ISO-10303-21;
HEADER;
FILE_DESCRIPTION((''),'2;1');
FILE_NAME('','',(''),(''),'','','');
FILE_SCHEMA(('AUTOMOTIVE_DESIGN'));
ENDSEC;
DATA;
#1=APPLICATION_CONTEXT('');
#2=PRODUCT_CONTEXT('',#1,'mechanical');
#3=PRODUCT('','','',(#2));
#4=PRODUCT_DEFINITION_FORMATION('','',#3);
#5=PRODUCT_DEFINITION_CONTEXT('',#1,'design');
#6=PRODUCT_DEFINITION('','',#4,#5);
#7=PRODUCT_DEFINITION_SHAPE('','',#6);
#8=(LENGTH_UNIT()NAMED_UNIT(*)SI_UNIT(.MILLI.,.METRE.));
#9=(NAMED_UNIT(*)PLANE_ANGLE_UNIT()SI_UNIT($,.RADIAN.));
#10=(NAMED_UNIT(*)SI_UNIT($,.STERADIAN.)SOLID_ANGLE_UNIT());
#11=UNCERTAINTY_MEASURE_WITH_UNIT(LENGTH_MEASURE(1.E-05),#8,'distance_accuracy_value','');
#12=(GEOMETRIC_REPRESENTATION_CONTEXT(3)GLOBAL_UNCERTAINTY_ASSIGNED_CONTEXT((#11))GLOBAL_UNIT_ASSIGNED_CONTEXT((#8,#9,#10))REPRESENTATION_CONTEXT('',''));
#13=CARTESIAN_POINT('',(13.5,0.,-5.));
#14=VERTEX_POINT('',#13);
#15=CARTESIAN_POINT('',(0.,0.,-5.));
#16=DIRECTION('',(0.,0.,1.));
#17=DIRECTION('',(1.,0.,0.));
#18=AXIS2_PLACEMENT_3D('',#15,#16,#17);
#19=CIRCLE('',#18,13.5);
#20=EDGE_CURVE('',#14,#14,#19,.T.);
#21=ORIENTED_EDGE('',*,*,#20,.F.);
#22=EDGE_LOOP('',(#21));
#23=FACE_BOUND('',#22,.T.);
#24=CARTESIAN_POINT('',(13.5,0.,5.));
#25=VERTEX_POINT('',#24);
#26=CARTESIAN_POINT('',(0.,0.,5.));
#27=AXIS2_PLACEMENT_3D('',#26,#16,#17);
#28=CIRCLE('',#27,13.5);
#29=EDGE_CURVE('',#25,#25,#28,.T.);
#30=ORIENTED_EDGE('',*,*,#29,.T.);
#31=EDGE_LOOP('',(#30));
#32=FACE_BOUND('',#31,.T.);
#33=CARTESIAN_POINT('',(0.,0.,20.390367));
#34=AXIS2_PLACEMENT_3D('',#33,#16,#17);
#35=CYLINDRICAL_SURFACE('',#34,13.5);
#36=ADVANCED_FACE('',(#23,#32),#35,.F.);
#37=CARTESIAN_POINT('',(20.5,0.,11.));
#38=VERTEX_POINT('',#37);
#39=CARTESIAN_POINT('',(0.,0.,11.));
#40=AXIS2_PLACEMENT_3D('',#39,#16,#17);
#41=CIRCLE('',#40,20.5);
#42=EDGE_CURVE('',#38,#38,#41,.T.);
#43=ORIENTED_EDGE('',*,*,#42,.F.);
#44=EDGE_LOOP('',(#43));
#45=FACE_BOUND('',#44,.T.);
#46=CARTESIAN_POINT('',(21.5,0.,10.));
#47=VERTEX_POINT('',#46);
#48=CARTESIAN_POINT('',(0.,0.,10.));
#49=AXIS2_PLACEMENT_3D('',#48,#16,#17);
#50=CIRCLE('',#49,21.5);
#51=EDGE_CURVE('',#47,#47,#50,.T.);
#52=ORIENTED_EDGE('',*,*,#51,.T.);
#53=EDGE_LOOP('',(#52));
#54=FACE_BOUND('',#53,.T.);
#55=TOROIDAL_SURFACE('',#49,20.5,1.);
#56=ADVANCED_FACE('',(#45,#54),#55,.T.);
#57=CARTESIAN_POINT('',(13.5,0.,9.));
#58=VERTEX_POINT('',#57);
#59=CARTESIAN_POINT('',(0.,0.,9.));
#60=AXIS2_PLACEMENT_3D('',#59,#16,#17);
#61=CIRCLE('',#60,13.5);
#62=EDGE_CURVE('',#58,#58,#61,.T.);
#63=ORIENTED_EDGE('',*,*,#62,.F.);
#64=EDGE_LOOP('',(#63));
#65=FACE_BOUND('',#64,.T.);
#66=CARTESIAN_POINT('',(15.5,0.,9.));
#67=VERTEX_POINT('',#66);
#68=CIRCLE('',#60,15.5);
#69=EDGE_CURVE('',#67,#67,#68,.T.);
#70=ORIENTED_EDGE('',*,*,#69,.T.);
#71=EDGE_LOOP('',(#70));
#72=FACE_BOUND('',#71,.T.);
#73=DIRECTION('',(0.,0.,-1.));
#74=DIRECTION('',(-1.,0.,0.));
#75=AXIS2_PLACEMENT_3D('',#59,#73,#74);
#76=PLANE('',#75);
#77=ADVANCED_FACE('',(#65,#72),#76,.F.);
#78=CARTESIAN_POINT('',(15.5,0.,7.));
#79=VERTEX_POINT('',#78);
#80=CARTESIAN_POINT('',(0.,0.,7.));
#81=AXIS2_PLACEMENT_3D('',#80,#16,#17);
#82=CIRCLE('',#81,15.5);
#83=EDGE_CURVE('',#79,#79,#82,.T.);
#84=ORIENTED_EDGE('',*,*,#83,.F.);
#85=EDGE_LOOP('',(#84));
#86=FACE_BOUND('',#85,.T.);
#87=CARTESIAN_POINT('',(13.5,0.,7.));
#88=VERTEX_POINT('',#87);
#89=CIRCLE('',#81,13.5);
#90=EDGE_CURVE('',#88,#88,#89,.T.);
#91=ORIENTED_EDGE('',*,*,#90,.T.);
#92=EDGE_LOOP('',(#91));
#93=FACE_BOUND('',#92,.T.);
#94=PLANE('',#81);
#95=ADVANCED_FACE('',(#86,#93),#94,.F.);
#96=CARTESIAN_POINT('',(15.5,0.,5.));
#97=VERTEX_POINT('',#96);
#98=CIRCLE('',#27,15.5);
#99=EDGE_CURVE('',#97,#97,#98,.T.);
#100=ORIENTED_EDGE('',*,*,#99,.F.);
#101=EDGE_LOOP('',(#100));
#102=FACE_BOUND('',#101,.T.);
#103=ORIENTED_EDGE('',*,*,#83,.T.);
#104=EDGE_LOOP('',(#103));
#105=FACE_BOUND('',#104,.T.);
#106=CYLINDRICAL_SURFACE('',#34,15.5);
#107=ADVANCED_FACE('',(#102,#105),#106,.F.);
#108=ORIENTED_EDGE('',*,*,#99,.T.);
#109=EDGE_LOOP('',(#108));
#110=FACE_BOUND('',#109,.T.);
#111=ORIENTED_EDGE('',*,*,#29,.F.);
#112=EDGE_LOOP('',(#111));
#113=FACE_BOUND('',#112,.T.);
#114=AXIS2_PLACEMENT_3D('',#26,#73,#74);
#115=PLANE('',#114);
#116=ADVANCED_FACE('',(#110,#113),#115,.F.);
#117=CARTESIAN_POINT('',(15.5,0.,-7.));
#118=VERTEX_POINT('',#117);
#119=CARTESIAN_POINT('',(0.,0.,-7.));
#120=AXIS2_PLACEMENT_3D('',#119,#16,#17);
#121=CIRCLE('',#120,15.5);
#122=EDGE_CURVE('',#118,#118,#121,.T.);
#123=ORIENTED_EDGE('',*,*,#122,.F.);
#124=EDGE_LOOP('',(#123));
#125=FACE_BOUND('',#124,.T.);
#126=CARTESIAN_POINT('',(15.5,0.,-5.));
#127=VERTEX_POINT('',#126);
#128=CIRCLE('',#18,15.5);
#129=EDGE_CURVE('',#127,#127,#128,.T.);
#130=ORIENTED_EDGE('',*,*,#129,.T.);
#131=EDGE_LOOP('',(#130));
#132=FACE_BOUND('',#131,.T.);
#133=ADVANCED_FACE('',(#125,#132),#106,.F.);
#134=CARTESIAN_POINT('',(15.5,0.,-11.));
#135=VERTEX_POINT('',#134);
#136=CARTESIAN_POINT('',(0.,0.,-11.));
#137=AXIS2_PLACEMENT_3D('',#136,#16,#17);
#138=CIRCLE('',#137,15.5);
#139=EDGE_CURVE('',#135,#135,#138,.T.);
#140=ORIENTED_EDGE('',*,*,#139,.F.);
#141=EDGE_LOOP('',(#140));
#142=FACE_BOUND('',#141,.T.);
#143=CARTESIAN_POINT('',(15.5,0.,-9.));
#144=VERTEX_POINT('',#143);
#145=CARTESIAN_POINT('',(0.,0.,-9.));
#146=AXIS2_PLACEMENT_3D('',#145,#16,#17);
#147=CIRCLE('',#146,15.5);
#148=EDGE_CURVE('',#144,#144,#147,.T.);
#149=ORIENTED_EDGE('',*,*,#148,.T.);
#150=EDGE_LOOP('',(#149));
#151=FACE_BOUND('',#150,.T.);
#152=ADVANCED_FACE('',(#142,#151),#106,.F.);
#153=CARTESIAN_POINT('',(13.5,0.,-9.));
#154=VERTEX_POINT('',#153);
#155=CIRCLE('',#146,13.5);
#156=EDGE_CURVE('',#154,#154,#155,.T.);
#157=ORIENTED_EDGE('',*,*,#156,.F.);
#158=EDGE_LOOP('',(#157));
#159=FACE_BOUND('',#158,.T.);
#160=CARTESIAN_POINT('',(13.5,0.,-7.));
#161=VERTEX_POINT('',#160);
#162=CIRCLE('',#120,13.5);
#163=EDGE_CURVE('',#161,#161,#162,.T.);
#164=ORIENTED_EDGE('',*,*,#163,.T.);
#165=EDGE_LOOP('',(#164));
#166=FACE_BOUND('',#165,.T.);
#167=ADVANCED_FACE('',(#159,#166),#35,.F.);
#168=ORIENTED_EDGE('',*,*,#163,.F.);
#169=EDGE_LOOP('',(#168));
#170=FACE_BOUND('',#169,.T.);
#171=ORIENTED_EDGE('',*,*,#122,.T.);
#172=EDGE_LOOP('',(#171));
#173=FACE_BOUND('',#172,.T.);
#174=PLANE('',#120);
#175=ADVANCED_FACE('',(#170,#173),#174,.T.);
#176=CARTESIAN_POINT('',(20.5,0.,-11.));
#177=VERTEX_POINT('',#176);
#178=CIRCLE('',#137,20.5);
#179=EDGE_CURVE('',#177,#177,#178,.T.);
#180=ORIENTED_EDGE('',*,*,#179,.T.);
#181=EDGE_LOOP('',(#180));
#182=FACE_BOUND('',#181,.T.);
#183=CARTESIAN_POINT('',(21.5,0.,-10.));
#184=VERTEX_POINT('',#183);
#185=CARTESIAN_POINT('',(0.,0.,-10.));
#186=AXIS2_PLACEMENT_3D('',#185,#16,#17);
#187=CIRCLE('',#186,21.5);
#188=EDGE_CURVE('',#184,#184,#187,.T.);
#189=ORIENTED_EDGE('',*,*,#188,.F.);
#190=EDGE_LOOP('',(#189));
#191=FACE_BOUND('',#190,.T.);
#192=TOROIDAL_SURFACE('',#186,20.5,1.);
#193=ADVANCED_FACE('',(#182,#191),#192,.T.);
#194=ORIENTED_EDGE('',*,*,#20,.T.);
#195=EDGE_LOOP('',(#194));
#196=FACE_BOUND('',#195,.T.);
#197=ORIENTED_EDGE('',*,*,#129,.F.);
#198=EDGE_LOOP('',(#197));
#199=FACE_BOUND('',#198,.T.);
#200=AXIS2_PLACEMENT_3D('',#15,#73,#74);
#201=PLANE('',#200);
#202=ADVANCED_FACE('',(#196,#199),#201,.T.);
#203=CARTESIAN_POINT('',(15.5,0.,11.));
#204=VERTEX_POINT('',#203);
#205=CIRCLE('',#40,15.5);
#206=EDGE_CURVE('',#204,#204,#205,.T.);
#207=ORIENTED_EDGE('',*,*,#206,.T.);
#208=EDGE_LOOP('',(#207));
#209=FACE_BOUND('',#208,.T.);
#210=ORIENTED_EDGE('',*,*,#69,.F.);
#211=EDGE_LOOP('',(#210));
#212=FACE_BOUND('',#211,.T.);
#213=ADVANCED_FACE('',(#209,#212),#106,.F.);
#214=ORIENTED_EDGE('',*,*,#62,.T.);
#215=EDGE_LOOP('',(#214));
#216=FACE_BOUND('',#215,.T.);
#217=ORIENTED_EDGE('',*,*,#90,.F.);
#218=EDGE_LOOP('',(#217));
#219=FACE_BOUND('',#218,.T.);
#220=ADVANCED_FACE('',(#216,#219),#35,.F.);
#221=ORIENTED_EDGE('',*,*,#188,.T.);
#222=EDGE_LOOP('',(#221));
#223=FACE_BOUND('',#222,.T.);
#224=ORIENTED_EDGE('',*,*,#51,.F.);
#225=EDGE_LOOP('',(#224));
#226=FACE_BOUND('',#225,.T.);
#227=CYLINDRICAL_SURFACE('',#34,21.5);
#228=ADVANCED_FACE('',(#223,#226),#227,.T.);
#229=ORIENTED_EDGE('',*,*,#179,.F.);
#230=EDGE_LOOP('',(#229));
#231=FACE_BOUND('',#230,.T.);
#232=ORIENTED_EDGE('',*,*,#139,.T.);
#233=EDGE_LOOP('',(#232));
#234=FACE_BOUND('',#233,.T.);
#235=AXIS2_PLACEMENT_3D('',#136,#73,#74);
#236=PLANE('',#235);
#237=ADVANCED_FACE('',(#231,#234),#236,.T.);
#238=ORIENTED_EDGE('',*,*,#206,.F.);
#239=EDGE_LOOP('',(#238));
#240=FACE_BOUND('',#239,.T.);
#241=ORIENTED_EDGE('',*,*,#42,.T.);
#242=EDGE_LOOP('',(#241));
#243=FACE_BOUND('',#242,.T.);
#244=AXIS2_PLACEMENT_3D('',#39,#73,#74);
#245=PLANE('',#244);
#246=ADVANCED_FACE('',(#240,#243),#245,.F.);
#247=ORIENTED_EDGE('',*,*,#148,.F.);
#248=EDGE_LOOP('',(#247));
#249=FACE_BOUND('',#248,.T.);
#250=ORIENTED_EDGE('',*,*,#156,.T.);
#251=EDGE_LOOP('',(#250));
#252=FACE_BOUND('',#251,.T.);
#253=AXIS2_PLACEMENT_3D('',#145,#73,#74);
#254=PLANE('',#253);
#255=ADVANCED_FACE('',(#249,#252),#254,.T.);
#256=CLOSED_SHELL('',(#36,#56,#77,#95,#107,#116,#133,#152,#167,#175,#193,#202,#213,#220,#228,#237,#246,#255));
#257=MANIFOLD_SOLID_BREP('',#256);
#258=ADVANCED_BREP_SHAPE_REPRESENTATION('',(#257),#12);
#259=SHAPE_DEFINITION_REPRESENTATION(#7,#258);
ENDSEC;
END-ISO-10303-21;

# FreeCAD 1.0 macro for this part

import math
import FreeCAD as App
import Part
import Sketcher

V = App.Vector

doc = App.newDocument("Part")
body = doc.addObject("PartDesign::Body", "Body")

# Sketch on YZ plane
sketch1 = body.newObject("Sketcher::SketchObject", "Sketch")
sketch1.AttachmentSupport = (doc.getObject("YZ_Plane"), [""])
sketch1.MapMode = "FlatFace"
sketch1.addGeometry(Part.LineSegment(V(21.5, -10, 0), V(21.5, 10, 0)), False)
sketch1.addGeometry(Part.ArcOfCircle(Part.Circle(V(20.5, 10, 0), V(0, 0, 1), 1), math.radians(0), math.radians(90)), False)
sketch1.addGeometry(Part.LineSegment(V(20.5, 11, 0), V(15.5, 11, 0)), False)
sketch1.addGeometry(Part.LineSegment(V(15.5, 11, 0), V(15.5, 9, 0)), False)
sketch1.addGeometry(Part.LineSegment(V(15.5, 9, 0), V(13.5, 9, 0)), False)
sketch1.addGeometry(Part.LineSegment(V(13.5, 9, 0), V(13.5, 7, 0)), False)
sketch1.addGeometry(Part.LineSegment(V(13.5, 7, 0), V(15.5, 7, 0)), False)
sketch1.addGeometry(Part.LineSegment(V(15.5, 7, 0), V(15.5, 5, 0)), False)
sketch1.addGeometry(Part.LineSegment(V(15.5, 5, 0), V(13.5, 5, 0)), False)
sketch1.addGeometry(Part.LineSegment(V(13.5, 5, 0), V(13.5, -5, 0)), False)
sketch1.addGeometry(Part.LineSegment(V(13.5, -5, 0), V(15.5, -5, 0)), False)
sketch1.addGeometry(Part.LineSegment(V(15.5, -5, 0), V(15.5, -7, 0)), False)
sketch1.addGeometry(Part.LineSegment(V(15.5, -7, 0), V(13.5, -7, 0)), False)
sketch1.addGeometry(Part.LineSegment(V(13.5, -7, 0), V(13.5, -9, 0)), False)
sketch1.addGeometry(Part.LineSegment(V(13.5, -9, 0), V(15.5, -9, 0)), False)
sketch1.addGeometry(Part.LineSegment(V(15.5, -9, 0), V(15.5, -11, 0)), False)
sketch1.addGeometry(Part.LineSegment(V(15.5, -11, 0), V(20.5, -11, 0)), False)
sketch1.addGeometry(Part.ArcOfCircle(Part.Circle(V(20.5, -10, 0), V(0, 0, 1), 1), math.radians(-90), math.radians(0)), False)
sketch1.addConstraint(Sketcher.Constraint("Tangent", 0, 2, 1, 1))
sketch1.addConstraint(Sketcher.Constraint("Tangent", 1, 2, 2, 1))
sketch1.addConstraint(Sketcher.Constraint("Coincident", 2, 2, 3, 1))
sketch1.addConstraint(Sketcher.Constraint("Coincident", 3, 2, 4, 1))
sketch1.addConstraint(Sketcher.Constraint("Coincident", 4, 2, 5, 1))
sketch1.addConstraint(Sketcher.Constraint("Coincident", 5, 2, 6, 1))
sketch1.addConstraint(Sketcher.Constraint("Coincident", 6, 2, 7, 1))
sketch1.addConstraint(Sketcher.Constraint("Coincident", 7, 2, 8, 1))
sketch1.addConstraint(Sketcher.Constraint("Coincident", 8, 2, 9, 1))
sketch1.addConstraint(Sketcher.Constraint("Coincident", 9, 2, 10, 1))
sketch1.addConstraint(Sketcher.Constraint("Coincident", 10, 2, 11, 1))
sketch1.addConstraint(Sketcher.Constraint("Coincident", 11, 2, 12, 1))
sketch1.addConstraint(Sketcher.Constraint("Coincident", 12, 2, 13, 1))
sketch1.addConstraint(Sketcher.Constraint("Coincident", 13, 2, 14, 1))
sketch1.addConstraint(Sketcher.Constraint("Coincident", 14, 2, 15, 1))
sketch1.addConstraint(Sketcher.Constraint("Coincident", 15, 2, 16, 1))
sketch1.addConstraint(Sketcher.Constraint("Tangent", 16, 2, 17, 1))
sketch1.addConstraint(Sketcher.Constraint("Tangent", 17, 2, 0, 1))
sketch1.addConstraint(Sketcher.Constraint("Vertical", 0))
sketch1.addConstraint(Sketcher.Constraint("Horizontal", 2))
sketch1.addConstraint(Sketcher.Constraint("Vertical", 3))
sketch1.addConstraint(Sketcher.Constraint("Horizontal", 4))
sketch1.addConstraint(Sketcher.Constraint("Vertical", 5))
sketch1.addConstraint(Sketcher.Constraint("Horizontal", 6))
sketch1.addConstraint(Sketcher.Constraint("Vertical", 7))
sketch1.addConstraint(Sketcher.Constraint("Horizontal", 8))
sketch1.addConstraint(Sketcher.Constraint("Vertical", 9))
sketch1.addConstraint(Sketcher.Constraint("Horizontal", 10))
sketch1.addConstraint(Sketcher.Constraint("Vertical", 11))
sketch1.addConstraint(Sketcher.Constraint("Horizontal", 12))
sketch1.addConstraint(Sketcher.Constraint("Vertical", 13))
sketch1.addConstraint(Sketcher.Constraint("Horizontal", 14))
sketch1.addConstraint(Sketcher.Constraint("Vertical", 15))
sketch1.addConstraint(Sketcher.Constraint("Horizontal", 16))
sketch1.addConstraint(Sketcher.Constraint("Equal", 1, 17))
sketch1.addConstraint(Sketcher.Constraint("Symmetric", 7, 2, 10, 2, -1))
sketch1.addConstraint(Sketcher.Constraint("Symmetric", 5, 2, 12, 2, -1))
sketch1.addConstraint(Sketcher.Constraint("Symmetric", 3, 2, 14, 2, -1))
sketch1.addConstraint(Sketcher.Constraint("Vertical", 3, 2, 6, 2))
sketch1.addConstraint(Sketcher.Constraint("Vertical", 5, 2, 8, 2))
sketch1.addConstraint(Sketcher.Constraint("Equal", 14, 3))
sketch1.addConstraint(Sketcher.Constraint("Equal", 3, 5))
sketch1.addConstraint(Sketcher.Constraint("Equal", 5, 7))
sketch1.addConstraint(Sketcher.Constraint("Equal", 13, 15))
sketch1.addConstraint(Sketcher.Constraint("Radius", 1, 1.0))
sketch1.addConstraint(Sketcher.Constraint("DistanceX", 2, 2, 2, 1, 5.0))
sketch1.addConstraint(Sketcher.Constraint("DistanceX", 4, 2, 4, 1, 2.0))
sketch1.addConstraint(Sketcher.Constraint("DistanceY", 0, 1, 0, 2, 20.0))
sketch1.addConstraint(Sketcher.Constraint("DistanceX", -1, 1, 1, 3, 20.5))
revolution = body.newObject("PartDesign::Revolution", "Revolution")
revolution.Profile = sketch1
revolution.ReferenceAxis = (sketch1, ["V_Axis"])
revolution.Angle = 360

doc.recompute()
